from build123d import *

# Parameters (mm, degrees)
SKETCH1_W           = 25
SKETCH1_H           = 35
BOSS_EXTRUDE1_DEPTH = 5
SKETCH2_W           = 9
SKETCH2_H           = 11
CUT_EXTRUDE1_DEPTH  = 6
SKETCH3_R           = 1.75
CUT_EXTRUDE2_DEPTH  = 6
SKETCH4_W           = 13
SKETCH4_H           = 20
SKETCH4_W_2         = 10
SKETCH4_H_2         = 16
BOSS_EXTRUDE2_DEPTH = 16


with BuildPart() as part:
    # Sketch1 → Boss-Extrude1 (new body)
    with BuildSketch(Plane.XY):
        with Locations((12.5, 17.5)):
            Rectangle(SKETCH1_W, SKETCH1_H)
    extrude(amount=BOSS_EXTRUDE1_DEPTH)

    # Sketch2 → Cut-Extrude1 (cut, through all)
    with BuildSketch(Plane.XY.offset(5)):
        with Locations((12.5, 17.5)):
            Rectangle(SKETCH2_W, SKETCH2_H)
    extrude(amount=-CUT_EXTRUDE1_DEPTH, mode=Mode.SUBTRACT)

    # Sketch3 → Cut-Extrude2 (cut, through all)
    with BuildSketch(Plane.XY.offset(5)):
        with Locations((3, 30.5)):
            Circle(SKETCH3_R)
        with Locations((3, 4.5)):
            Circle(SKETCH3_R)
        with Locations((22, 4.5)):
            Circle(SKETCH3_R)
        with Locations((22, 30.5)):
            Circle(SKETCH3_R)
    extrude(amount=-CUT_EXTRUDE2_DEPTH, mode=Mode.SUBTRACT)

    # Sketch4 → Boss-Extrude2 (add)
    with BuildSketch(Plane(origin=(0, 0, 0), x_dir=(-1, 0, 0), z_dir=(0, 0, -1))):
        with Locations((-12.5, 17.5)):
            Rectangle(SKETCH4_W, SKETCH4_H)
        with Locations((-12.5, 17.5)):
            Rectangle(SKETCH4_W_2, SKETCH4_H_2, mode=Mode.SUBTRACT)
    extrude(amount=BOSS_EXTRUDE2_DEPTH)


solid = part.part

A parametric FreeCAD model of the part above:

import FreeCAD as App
import Part
import Sketcher

doc = App.newDocument("Part")
body = doc.addObject("PartDesign::Body", "Body")

# Sketch on XY plane
sketch1 = doc.addObject("Sketcher::SketchObject", "Sketch")
body.addObject(sketch1)
sketch1.AttachmentSupport = (doc.XY_Plane, [""])
sketch1.MapMode = "FlatFace"
sketch1.addGeometry(Part.LineSegment(App.Vector(0, 35, 0), App.Vector(0, 0, 0)), False)
sketch1.addGeometry(Part.LineSegment(App.Vector(0, 0, 0), App.Vector(25, 0, 0)), False)
sketch1.addGeometry(Part.LineSegment(App.Vector(25, 0, 0), App.Vector(25, 35, 0)), False)
sketch1.addGeometry(Part.LineSegment(App.Vector(25, 35, 0), App.Vector(0, 35, 0)), False)
sketch1.addConstraint(Sketcher.Constraint("Coincident", 0, 2, 1, 1))
sketch1.addConstraint(Sketcher.Constraint("Coincident", 1, 2, 2, 1))
sketch1.addConstraint(Sketcher.Constraint("Coincident", 2, 2, 3, 1))
sketch1.addConstraint(Sketcher.Constraint("Coincident", 3, 2, 0, 1))
sketch1.addConstraint(Sketcher.Constraint("Vertical", 0))
sketch1.addConstraint(Sketcher.Constraint("Horizontal", 1))
sketch1.addConstraint(Sketcher.Constraint("Vertical", 2))
sketch1.addConstraint(Sketcher.Constraint("Horizontal", 3))
sketch1.addConstraint(Sketcher.Constraint("Coincident", 0, 2, -1, 1))
sketch1.addConstraint(Sketcher.Constraint("DistanceX", 1, 1, 1, 2, 25.0))
sketch1.addConstraint(Sketcher.Constraint("DistanceY", 0, 2, 0, 1, 35.0))
pad1 = doc.addObject("PartDesign::Pad", "Pad")
body.addObject(pad1)
pad1.Profile = sketch1
pad1.Length = 5

# Sketch on XY plane
sketch2 = doc.addObject("Sketcher::SketchObject", "Sketch001")
body.addObject(sketch2)
sketch2.AttachmentSupport = (doc.XY_Plane, [""])
sketch2.MapMode = "FlatFace"
sketch2.AttachmentOffset = App.Placement(App.Vector(0, 0, 5), App.Rotation())
sketch2.addGeometry(Part.LineSegment(App.Vector(8, 23, 0), App.Vector(8, 12, 0)), False)
sketch2.addGeometry(Part.LineSegment(App.Vector(8, 12, 0), App.Vector(17, 12, 0)), False)
sketch2.addGeometry(Part.LineSegment(App.Vector(17, 12, 0), App.Vector(17, 23, 0)), False)
sketch2.addGeometry(Part.LineSegment(App.Vector(17, 23, 0), App.Vector(8, 23, 0)), False)
sketch2.addConstraint(Sketcher.Constraint("Coincident", 0, 2, 1, 1))
sketch2.addConstraint(Sketcher.Constraint("Coincident", 1, 2, 2, 1))
sketch2.addConstraint(Sketcher.Constraint("Coincident", 2, 2, 3, 1))
sketch2.addConstraint(Sketcher.Constraint("Coincident", 3, 2, 0, 1))
sketch2.addConstraint(Sketcher.Constraint("Vertical", 0))
sketch2.addConstraint(Sketcher.Constraint("Horizontal", 1))
sketch2.addConstraint(Sketcher.Constraint("Vertical", 2))
sketch2.addConstraint(Sketcher.Constraint("Horizontal", 3))
sketch2.addConstraint(Sketcher.Constraint("DistanceX", 1, 1, 1, 2, 9.0))
sketch2.addConstraint(Sketcher.Constraint("DistanceY", 0, 2, 0, 1, 11.0))
sketch2.addConstraint(Sketcher.Constraint("DistanceX", -1, 1, 0, 2, 8.0))
sketch2.addConstraint(Sketcher.Constraint("DistanceY", -1, 1, 0, 2, 12.0))
pocket1 = doc.addObject("PartDesign::Pocket", "Pocket")
body.addObject(pocket1)
pocket1.Profile = sketch2
pocket1.Type = "ThroughAll"

# Sketch on XY plane
sketch3 = doc.addObject("Sketcher::SketchObject", "Sketch002")
body.addObject(sketch3)
sketch3.AttachmentSupport = (doc.XY_Plane, [""])
sketch3.MapMode = "FlatFace"
sketch3.AttachmentOffset = App.Placement(App.Vector(0, 0, 5), App.Rotation())
sketch3.addGeometry(Part.Circle(App.Vector(3, 30.5, 0), App.Vector(0, 0, 1), 1.8), False)
sketch3.addGeometry(Part.Circle(App.Vector(3, 4.5, 0), App.Vector(0, 0, 1), 1.8), False)
sketch3.addGeometry(Part.Circle(App.Vector(22, 4.5, 0), App.Vector(0, 0, 1), 1.8), False)
sketch3.addGeometry(Part.Circle(App.Vector(22, 30.5, 0), App.Vector(0, 0, 1), 1.8), False)
sketch3.addConstraint(Sketcher.Constraint("Equal", 0, 1))
sketch3.addConstraint(Sketcher.Constraint("Equal", 1, 2))
sketch3.addConstraint(Sketcher.Constraint("Equal", 2, 3))
sketch3.addConstraint(Sketcher.Constraint("Horizontal", 1, 3, 2, 3))
sketch3.addConstraint(Sketcher.Constraint("Horizontal", 0, 3, 3, 3))
sketch3.addConstraint(Sketcher.Constraint("Vertical", 0, 3, 1, 3))
sketch3.addConstraint(Sketcher.Constraint("Vertical", 2, 3, 3, 3))
sketch3.addConstraint(Sketcher.Constraint("Diameter", 0, 3.5))
sketch3.addConstraint(Sketcher.Constraint("DistanceX", -1, 1, 0, 3, 3.0))
sketch3.addConstraint(Sketcher.Constraint("DistanceX", -1, 1, 2, 3, 22.0))
sketch3.addConstraint(Sketcher.Constraint("DistanceY", 1, 3, 0, 3, 26.0))
sketch3.addConstraint(Sketcher.Constraint("DistanceY", -1, 1, 0, 3, 30.5))
pocket2 = doc.addObject("PartDesign::Pocket", "Pocket001")
body.addObject(pocket2)
pocket2.Profile = sketch3
pocket2.Type = "ThroughAll"

# Sketch on XY plane
sketch4 = doc.addObject("Sketcher::SketchObject", "Sketch003")
body.addObject(sketch4)
sketch4.AttachmentSupport = (doc.XY_Plane, [""])
sketch4.MapMode = "FlatFace"
sketch4.addGeometry(Part.LineSegment(App.Vector(19, 28, 0), App.Vector(19, 8, 0)), False)
sketch4.addGeometry(Part.LineSegment(App.Vector(19, 8, 0), App.Vector(6, 8, 0)), False)
sketch4.addGeometry(Part.LineSegment(App.Vector(6, 8, 0), App.Vector(6, 28, 0)), False)
sketch4.addGeometry(Part.LineSegment(App.Vector(6, 28, 0), App.Vector(19, 28, 0)), False)
sketch4.addGeometry(Part.LineSegment(App.Vector(8, 10, 0), App.Vector(18, 10, 0)), False)
sketch4.addGeometry(Part.LineSegment(App.Vector(18, 10, 0), App.Vector(18, 26, 0)), False)
sketch4.addGeometry(Part.LineSegment(App.Vector(18, 26, 0), App.Vector(8, 26, 0)), False)
sketch4.addGeometry(Part.LineSegment(App.Vector(8, 26, 0), App.Vector(8, 10, 0)), False)
sketch4.addConstraint(Sketcher.Constraint("Coincident", 0, 2, 1, 1))
sketch4.addConstraint(Sketcher.Constraint("Coincident", 1, 2, 2, 1))
sketch4.addConstraint(Sketcher.Constraint("Coincident", 2, 2, 3, 1))
sketch4.addConstraint(Sketcher.Constraint("Coincident", 3, 2, 0, 1))
sketch4.addConstraint(Sketcher.Constraint("Coincident", 4, 2, 5, 1))
sketch4.addConstraint(Sketcher.Constraint("Coincident", 5, 2, 6, 1))
sketch4.addConstraint(Sketcher.Constraint("Coincident", 6, 2, 7, 1))
sketch4.addConstraint(Sketcher.Constraint("Coincident", 7, 2, 4, 1))
sketch4.addConstraint(Sketcher.Constraint("Vertical", 0))
sketch4.addConstraint(Sketcher.Constraint("Horizontal", 1))
sketch4.addConstraint(Sketcher.Constraint("Vertical", 2))
sketch4.addConstraint(Sketcher.Constraint("Horizontal", 3))
sketch4.addConstraint(Sketcher.Constraint("Horizontal", 4))
sketch4.addConstraint(Sketcher.Constraint("Vertical", 5))
sketch4.addConstraint(Sketcher.Constraint("Horizontal", 6))
sketch4.addConstraint(Sketcher.Constraint("Vertical", 7))
sketch4.addConstraint(Sketcher.Constraint("DistanceX", 1, 2, 1, 1, 13.0))
sketch4.addConstraint(Sketcher.Constraint("DistanceX", 4, 1, 4, 2, 10.0))
sketch4.addConstraint(Sketcher.Constraint("DistanceY", 0, 2, 0, 1, 20.0))
sketch4.addConstraint(Sketcher.Constraint("DistanceY", 5, 1, 5, 2, 16.0))
sketch4.addConstraint(Sketcher.Constraint("DistanceX", -1, 1, 0, 2, 19.0))
sketch4.addConstraint(Sketcher.Constraint("DistanceY", 0, 2, 4, 2, 2.0))
sketch4.addConstraint(Sketcher.Constraint("DistanceY", -1, 1, 0, 2, 7.5))
sketch4.addConstraint(Sketcher.Constraint("DistanceX", -1, 1, 4, 2, 17.5))
pad2 = doc.addObject("PartDesign::Pad", "Pad001")
body.addObject(pad2)
pad2.Profile = sketch4
pad2.Length = 16
pad2.Reversed = True

doc.recompute()
